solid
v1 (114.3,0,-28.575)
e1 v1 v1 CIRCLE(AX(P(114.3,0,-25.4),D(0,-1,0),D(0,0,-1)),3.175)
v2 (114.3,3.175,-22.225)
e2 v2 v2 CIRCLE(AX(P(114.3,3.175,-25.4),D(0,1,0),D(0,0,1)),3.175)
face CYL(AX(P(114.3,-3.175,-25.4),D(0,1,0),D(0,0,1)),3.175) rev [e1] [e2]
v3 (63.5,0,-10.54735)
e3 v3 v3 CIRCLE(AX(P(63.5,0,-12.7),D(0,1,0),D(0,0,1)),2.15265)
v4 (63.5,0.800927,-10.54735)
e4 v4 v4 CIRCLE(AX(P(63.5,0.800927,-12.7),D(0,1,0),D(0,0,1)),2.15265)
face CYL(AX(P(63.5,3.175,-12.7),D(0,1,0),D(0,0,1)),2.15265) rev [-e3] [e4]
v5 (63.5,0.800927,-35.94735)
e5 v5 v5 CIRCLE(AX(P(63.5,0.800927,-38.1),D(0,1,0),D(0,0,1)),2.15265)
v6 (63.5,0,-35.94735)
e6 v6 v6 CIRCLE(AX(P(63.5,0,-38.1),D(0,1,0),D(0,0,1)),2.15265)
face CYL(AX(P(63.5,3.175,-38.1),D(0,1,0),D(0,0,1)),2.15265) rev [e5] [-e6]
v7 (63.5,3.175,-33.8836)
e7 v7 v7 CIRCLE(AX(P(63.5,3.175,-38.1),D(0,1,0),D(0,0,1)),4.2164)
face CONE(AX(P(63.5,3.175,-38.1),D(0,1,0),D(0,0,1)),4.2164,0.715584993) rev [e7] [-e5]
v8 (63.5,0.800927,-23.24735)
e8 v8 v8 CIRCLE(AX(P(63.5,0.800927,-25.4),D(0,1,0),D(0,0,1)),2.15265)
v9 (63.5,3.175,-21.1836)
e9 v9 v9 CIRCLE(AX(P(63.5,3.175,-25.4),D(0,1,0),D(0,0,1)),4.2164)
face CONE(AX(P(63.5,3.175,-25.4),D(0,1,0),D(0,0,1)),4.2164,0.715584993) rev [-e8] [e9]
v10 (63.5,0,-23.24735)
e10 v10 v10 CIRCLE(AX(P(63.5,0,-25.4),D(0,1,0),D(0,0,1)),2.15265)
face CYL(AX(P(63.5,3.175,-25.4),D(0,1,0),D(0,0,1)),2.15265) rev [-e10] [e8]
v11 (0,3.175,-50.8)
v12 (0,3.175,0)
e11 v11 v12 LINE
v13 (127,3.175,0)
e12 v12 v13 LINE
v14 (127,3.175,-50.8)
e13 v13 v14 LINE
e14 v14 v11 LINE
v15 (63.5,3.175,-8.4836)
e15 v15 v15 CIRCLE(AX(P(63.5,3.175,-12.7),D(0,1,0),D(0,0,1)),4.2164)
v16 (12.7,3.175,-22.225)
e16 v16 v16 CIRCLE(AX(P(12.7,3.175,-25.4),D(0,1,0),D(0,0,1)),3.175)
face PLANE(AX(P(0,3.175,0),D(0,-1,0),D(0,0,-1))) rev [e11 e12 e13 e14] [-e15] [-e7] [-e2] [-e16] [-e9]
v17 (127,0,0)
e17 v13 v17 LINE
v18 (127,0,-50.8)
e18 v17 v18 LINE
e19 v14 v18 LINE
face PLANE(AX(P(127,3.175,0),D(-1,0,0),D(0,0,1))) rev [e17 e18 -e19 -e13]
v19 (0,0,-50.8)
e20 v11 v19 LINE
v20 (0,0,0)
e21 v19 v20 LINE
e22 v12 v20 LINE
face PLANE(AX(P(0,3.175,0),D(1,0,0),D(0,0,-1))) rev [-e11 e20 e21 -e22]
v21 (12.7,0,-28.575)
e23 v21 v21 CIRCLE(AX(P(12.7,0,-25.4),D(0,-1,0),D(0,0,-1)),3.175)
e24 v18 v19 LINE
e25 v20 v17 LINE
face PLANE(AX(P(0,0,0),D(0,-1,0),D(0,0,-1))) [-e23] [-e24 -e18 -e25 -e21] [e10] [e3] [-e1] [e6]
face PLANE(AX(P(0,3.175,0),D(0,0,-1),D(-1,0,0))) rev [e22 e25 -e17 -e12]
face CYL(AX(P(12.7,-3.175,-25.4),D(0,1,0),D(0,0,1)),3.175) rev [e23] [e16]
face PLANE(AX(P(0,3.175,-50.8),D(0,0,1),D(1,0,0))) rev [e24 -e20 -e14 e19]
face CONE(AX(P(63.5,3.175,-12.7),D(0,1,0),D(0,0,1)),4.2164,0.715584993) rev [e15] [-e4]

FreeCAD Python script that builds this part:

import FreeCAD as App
import Part
import Sketcher
Q = App.Units.Quantity

doc = App.newDocument("Part")
params = doc.addObject("Spreadsheet::Sheet", "Params")
for row, (alias, value) in enumerate([
    ("sketch1_width", "5 in"),
    ("sketch1_height", "2 in"),
    ("pad1_length", "0.125 in"),
    ("sketch2_diameter", "0.25 in"),
    ("pocket1_length", "0.25 in"),
    ("sketch3_width", "0.125 in"),
    ("sketch3_height", "0.166 in"),
    ("groove_angle", "360 deg"),
    ("linearpattern_pitch", "0.5 in"),
    ("linearpattern2_pitch", "1 in"),
], start=1):
    params.set(f"A{row}", alias)
    params.set(f"B{row}", "=" + value)
    params.setAlias(f"B{row}", alias)

body = doc.addObject("PartDesign::Body", "Body")

sketch1 = body.newObject("Sketcher::SketchObject", "Sketch")
sketch1.AttachmentSupport = (doc.getObject("XZ_Plane"), [""])
sketch1.MapMode = "FlatFace"
sketch1.addGeometry([
    Part.LineSegment(App.Vector(0, -50.8, 0), App.Vector(0, 0, 0)),
    Part.LineSegment(App.Vector(0, 0, 0), App.Vector(127, 0, 0)),
    Part.LineSegment(App.Vector(127, 0, 0), App.Vector(127, -50.8, 0)),
    Part.LineSegment(App.Vector(127, -50.8, 0), App.Vector(0, -50.8, 0)),
], False)
sketch1.addConstraint([
    Sketcher.Constraint("Coincident", 0, 2, 1, 1),
    Sketcher.Constraint("Coincident", 1, 2, 2, 1),
    Sketcher.Constraint("Coincident", 2, 2, 3, 1),
    Sketcher.Constraint("Coincident", 3, 2, 0, 1),
    Sketcher.Constraint("Vertical", 0),
    Sketcher.Constraint("Horizontal", 1),
    Sketcher.Constraint("Vertical", 2),
    Sketcher.Constraint("Horizontal", 3),
    Sketcher.Constraint("Coincident", 0, 2, -1, 1),
    Sketcher.Constraint("DistanceX", 1, 1, 1, 2, Q("5 in")),
    Sketcher.Constraint("DistanceY", 0, 1, 0, 2, Q("2 in")),
])
sketch1.setExpression("Constraints[9]", "Params.sketch1_width")
sketch1.setExpression("Constraints[10]", "Params.sketch1_height")
pad1 = body.newObject("PartDesign::Pad", "Pad")
pad1.Profile = sketch1
pad1.setExpression("Length", "Params.pad1_length")
pad1.Reversed = True

sketch2 = body.newObject("Sketcher::SketchObject", "Sketch001")
sketch2.AttachmentSupport = (doc.getObject("XZ_Plane"), [""])
sketch2.MapMode = "FlatFace"
sketch2.AttachmentOffset = App.Placement(App.Vector(0, 0, -0.125 * 25.4), App.Rotation())
sketch2.addGeometry([
    Part.Circle(App.Vector(12.7, -25.4, 0), App.Vector(0, 0, 1), 3.175),
    Part.Circle(App.Vector(114.3, -25.4, 0), App.Vector(0, 0, 1), 3.175),
], False)
sketch2.addConstraint([
    Sketcher.Constraint("Equal", 0, 1),
    Sketcher.Constraint("Horizontal", 0, 3, 1, 3),
    Sketcher.Constraint("Diameter", 0, Q("0.25 in")),
    Sketcher.Constraint("DistanceY", 0, 3, -1, 1, Q("1 in")),
    Sketcher.Constraint("DistanceX", 0, 3, 1, 3, Q("4 in")),
    Sketcher.Constraint("DistanceX", -1, 1, 0, 3, Q("0.5 in")),
])
sketch2.setExpression("Constraints[2]", "Params.sketch2_diameter")
pocket1 = body.newObject("PartDesign::Pocket", "Pocket")
pocket1.Profile = sketch2
pocket1.setExpression("Length", "Params.pocket1_length")
pocket1.Reversed = True

sketch3 = body.newObject("Sketcher::SketchObject", "Sketch002")
sketch3.AttachmentSupport = (doc.getObject("YZ_Plane"), [""])
sketch3.MapMode = "FlatFace"
sketch3.AttachmentOffset = App.Placement(App.Vector(0, 0, 2.5 * 25.4), App.Rotation())
sketch3.addGeometry([
    Part.LineSegment(App.Vector(0, -12.7, 0), App.Vector(3.175, -12.7, 0)),
    Part.LineSegment(App.Vector(3.175, -12.7, 0), App.Vector(3.175, -8.4836, 0)),
    Part.LineSegment(App.Vector(3.175, -8.4836, 0), App.Vector(0.800927, -10.54735, 0)),
    Part.LineSegment(App.Vector(0.800927, -10.54735, 0), App.Vector(0, -10.54735, 0)),
    Part.LineSegment(App.Vector(0, -10.54735, 0), App.Vector(0, -12.7, 0)),
], False)
sketch3.addGeometry(Part.LineSegment(App.Vector(3.175, -12.7, 0), App.Vector(0, -12.7, 0)), True)
sketch3.addConstraint([
    Sketcher.Constraint("Coincident", 0, 2, 1, 1),
    Sketcher.Constraint("Coincident", 1, 2, 2, 1),
    Sketcher.Constraint("Coincident", 2, 2, 3, 1),
    Sketcher.Constraint("Coincident", 3, 2, 4, 1),
    Sketcher.Constraint("Coincident", 4, 2, 0, 1),
    Sketcher.Constraint("Horizontal", 0),
    Sketcher.Constraint("Vertical", 1),
    Sketcher.Constraint("Horizontal", 3),
    Sketcher.Constraint("Vertical", 4),
    Sketcher.Constraint("Horizontal", 5),
    Sketcher.Constraint("Coincident", 5, 1, 0, 2),
    Sketcher.Constraint("PointOnObject", 3, 2, -2),
    Sketcher.Constraint("PointOnObject", 5, 2, -2),
    Sketcher.Constraint("Angle", 2, Q("-139 deg")),
    Sketcher.Constraint("DistanceY", 0, 2, -1, 1, Q("0.5 in")),
    Sketcher.Constraint("DistanceX", 0, 1, 0, 2, Q("0.125 in")),
    Sketcher.Constraint("DistanceY", 1, 1, 1, 2, Q("0.166 in")),
    Sketcher.Constraint("DistanceY", 4, 2, 4, 1, 2.15265),
])
sketch3.setExpression("Constraints[15]", "Params.sketch3_width")
sketch3.setExpression("Constraints[16]", "Params.sketch3_height")
groove = body.newObject("PartDesign::Groove", "Groove")
groove.Profile = sketch3
groove.ReferenceAxis = (sketch3, ["Axis0"])
groove.setExpression("Angle", "Params.groove_angle")
doc.recompute()

linearpattern = body.newObject("PartDesign::LinearPattern", "LinearPattern")
linearpattern.Originals = [groove]
linearpattern.Direction = (doc.getObject("Z_Axis"), [""])
linearpattern.Mode = "offset"
linearpattern.setExpression("Offset", "Params.linearpattern_pitch")
linearpattern.Occurrences = 2
linearpattern.Reversed = True
body.Tip = linearpattern
doc.recompute()

linearpattern2 = body.newObject("PartDesign::LinearPattern", "LinearPattern001")
linearpattern2.Originals = [groove]
linearpattern2.Direction = (doc.getObject("Z_Axis"), [""])
linearpattern2.Mode = "offset"
linearpattern2.setExpression("Offset", "Params.linearpattern2_pitch")
linearpattern2.Occurrences = 2
linearpattern2.Reversed = True
body.Tip = linearpattern2

doc.recompute()
